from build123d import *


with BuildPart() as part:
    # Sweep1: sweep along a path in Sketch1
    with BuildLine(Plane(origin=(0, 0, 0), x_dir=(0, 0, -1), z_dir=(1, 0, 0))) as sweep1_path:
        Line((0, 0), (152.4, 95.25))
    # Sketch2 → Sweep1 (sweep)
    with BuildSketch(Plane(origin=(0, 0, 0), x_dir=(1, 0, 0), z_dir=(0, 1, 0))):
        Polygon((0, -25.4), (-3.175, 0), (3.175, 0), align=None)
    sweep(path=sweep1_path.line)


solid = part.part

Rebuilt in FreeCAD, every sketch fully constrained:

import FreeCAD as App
import Part
import Sketcher

V = App.Vector
Q = App.Units.Quantity


def add_polygon(sketch, points):
    """Adds a closed chain of lines whose ends are joined by coincident constraints."""
    first, n = sketch.GeometryCount, len(points)
    for a, b in zip(points, points[1:] + points[:1]):
        sketch.addGeometry(Part.LineSegment(App.Vector(*a, 0), App.Vector(*b, 0)), False)
    for i in range(n):
        sketch.addConstraint(Sketcher.Constraint("Coincident", first + i, 2, first + (i + 1) % n, 1))

doc = App.newDocument("Part")
body = doc.addObject("PartDesign::Body", "Body")

sketch1 = body.newObject("Sketcher::SketchObject", "Sketch")
sketch1.AttachmentSupport = (doc.getObject("XZ_Plane"), [""])
sketch1.MapMode = "FlatFace"
add_polygon(sketch1, [(-3, 0), (0, 25), (3, 0)])
sketch1.addConstraint([
    Sketcher.Constraint("Horizontal", 2),
    Sketcher.Constraint("Symmetric", 1, 2, 2, 2, -1, 1),
    Sketcher.Constraint("PointOnObject", 0, 2, -2),
    Sketcher.Constraint("DistanceY", -1, 1, 0, 2, Q("1 in")),
    Sketcher.Constraint("DistanceX", 2, 2, 2, 1, Q("0.25 in")),
])

sketch2 = body.newObject("Sketcher::SketchObject", "Sketch001")
sketch2.Placement = App.Placement(V(0, 0, 0), App.Rotation(V(0, -0.52999894, 0.847998304), V(1, 0, 0), V(0, 0.847998304, 0.52999894), "ZXY"))
sketch2.addGeometry(Part.LineSegment(V(0, 0, 0), V(-180, 0, 0)), False)
sketch2.addConstraint([
    Sketcher.Constraint("Horizontal", 0),
    Sketcher.Constraint("Coincident", 0, 1, -1, 1),
    Sketcher.Constraint("DistanceX", 0, 2, 0, 1, Q("179.717341 mm")),
])
doc.recompute()

additivepipe = body.newObject("PartDesign::AdditivePipe", "AdditivePipe")
additivepipe.Profile = sketch1
additivepipe.Spine = (sketch2, ["Edge1"])

doc.recompute()
